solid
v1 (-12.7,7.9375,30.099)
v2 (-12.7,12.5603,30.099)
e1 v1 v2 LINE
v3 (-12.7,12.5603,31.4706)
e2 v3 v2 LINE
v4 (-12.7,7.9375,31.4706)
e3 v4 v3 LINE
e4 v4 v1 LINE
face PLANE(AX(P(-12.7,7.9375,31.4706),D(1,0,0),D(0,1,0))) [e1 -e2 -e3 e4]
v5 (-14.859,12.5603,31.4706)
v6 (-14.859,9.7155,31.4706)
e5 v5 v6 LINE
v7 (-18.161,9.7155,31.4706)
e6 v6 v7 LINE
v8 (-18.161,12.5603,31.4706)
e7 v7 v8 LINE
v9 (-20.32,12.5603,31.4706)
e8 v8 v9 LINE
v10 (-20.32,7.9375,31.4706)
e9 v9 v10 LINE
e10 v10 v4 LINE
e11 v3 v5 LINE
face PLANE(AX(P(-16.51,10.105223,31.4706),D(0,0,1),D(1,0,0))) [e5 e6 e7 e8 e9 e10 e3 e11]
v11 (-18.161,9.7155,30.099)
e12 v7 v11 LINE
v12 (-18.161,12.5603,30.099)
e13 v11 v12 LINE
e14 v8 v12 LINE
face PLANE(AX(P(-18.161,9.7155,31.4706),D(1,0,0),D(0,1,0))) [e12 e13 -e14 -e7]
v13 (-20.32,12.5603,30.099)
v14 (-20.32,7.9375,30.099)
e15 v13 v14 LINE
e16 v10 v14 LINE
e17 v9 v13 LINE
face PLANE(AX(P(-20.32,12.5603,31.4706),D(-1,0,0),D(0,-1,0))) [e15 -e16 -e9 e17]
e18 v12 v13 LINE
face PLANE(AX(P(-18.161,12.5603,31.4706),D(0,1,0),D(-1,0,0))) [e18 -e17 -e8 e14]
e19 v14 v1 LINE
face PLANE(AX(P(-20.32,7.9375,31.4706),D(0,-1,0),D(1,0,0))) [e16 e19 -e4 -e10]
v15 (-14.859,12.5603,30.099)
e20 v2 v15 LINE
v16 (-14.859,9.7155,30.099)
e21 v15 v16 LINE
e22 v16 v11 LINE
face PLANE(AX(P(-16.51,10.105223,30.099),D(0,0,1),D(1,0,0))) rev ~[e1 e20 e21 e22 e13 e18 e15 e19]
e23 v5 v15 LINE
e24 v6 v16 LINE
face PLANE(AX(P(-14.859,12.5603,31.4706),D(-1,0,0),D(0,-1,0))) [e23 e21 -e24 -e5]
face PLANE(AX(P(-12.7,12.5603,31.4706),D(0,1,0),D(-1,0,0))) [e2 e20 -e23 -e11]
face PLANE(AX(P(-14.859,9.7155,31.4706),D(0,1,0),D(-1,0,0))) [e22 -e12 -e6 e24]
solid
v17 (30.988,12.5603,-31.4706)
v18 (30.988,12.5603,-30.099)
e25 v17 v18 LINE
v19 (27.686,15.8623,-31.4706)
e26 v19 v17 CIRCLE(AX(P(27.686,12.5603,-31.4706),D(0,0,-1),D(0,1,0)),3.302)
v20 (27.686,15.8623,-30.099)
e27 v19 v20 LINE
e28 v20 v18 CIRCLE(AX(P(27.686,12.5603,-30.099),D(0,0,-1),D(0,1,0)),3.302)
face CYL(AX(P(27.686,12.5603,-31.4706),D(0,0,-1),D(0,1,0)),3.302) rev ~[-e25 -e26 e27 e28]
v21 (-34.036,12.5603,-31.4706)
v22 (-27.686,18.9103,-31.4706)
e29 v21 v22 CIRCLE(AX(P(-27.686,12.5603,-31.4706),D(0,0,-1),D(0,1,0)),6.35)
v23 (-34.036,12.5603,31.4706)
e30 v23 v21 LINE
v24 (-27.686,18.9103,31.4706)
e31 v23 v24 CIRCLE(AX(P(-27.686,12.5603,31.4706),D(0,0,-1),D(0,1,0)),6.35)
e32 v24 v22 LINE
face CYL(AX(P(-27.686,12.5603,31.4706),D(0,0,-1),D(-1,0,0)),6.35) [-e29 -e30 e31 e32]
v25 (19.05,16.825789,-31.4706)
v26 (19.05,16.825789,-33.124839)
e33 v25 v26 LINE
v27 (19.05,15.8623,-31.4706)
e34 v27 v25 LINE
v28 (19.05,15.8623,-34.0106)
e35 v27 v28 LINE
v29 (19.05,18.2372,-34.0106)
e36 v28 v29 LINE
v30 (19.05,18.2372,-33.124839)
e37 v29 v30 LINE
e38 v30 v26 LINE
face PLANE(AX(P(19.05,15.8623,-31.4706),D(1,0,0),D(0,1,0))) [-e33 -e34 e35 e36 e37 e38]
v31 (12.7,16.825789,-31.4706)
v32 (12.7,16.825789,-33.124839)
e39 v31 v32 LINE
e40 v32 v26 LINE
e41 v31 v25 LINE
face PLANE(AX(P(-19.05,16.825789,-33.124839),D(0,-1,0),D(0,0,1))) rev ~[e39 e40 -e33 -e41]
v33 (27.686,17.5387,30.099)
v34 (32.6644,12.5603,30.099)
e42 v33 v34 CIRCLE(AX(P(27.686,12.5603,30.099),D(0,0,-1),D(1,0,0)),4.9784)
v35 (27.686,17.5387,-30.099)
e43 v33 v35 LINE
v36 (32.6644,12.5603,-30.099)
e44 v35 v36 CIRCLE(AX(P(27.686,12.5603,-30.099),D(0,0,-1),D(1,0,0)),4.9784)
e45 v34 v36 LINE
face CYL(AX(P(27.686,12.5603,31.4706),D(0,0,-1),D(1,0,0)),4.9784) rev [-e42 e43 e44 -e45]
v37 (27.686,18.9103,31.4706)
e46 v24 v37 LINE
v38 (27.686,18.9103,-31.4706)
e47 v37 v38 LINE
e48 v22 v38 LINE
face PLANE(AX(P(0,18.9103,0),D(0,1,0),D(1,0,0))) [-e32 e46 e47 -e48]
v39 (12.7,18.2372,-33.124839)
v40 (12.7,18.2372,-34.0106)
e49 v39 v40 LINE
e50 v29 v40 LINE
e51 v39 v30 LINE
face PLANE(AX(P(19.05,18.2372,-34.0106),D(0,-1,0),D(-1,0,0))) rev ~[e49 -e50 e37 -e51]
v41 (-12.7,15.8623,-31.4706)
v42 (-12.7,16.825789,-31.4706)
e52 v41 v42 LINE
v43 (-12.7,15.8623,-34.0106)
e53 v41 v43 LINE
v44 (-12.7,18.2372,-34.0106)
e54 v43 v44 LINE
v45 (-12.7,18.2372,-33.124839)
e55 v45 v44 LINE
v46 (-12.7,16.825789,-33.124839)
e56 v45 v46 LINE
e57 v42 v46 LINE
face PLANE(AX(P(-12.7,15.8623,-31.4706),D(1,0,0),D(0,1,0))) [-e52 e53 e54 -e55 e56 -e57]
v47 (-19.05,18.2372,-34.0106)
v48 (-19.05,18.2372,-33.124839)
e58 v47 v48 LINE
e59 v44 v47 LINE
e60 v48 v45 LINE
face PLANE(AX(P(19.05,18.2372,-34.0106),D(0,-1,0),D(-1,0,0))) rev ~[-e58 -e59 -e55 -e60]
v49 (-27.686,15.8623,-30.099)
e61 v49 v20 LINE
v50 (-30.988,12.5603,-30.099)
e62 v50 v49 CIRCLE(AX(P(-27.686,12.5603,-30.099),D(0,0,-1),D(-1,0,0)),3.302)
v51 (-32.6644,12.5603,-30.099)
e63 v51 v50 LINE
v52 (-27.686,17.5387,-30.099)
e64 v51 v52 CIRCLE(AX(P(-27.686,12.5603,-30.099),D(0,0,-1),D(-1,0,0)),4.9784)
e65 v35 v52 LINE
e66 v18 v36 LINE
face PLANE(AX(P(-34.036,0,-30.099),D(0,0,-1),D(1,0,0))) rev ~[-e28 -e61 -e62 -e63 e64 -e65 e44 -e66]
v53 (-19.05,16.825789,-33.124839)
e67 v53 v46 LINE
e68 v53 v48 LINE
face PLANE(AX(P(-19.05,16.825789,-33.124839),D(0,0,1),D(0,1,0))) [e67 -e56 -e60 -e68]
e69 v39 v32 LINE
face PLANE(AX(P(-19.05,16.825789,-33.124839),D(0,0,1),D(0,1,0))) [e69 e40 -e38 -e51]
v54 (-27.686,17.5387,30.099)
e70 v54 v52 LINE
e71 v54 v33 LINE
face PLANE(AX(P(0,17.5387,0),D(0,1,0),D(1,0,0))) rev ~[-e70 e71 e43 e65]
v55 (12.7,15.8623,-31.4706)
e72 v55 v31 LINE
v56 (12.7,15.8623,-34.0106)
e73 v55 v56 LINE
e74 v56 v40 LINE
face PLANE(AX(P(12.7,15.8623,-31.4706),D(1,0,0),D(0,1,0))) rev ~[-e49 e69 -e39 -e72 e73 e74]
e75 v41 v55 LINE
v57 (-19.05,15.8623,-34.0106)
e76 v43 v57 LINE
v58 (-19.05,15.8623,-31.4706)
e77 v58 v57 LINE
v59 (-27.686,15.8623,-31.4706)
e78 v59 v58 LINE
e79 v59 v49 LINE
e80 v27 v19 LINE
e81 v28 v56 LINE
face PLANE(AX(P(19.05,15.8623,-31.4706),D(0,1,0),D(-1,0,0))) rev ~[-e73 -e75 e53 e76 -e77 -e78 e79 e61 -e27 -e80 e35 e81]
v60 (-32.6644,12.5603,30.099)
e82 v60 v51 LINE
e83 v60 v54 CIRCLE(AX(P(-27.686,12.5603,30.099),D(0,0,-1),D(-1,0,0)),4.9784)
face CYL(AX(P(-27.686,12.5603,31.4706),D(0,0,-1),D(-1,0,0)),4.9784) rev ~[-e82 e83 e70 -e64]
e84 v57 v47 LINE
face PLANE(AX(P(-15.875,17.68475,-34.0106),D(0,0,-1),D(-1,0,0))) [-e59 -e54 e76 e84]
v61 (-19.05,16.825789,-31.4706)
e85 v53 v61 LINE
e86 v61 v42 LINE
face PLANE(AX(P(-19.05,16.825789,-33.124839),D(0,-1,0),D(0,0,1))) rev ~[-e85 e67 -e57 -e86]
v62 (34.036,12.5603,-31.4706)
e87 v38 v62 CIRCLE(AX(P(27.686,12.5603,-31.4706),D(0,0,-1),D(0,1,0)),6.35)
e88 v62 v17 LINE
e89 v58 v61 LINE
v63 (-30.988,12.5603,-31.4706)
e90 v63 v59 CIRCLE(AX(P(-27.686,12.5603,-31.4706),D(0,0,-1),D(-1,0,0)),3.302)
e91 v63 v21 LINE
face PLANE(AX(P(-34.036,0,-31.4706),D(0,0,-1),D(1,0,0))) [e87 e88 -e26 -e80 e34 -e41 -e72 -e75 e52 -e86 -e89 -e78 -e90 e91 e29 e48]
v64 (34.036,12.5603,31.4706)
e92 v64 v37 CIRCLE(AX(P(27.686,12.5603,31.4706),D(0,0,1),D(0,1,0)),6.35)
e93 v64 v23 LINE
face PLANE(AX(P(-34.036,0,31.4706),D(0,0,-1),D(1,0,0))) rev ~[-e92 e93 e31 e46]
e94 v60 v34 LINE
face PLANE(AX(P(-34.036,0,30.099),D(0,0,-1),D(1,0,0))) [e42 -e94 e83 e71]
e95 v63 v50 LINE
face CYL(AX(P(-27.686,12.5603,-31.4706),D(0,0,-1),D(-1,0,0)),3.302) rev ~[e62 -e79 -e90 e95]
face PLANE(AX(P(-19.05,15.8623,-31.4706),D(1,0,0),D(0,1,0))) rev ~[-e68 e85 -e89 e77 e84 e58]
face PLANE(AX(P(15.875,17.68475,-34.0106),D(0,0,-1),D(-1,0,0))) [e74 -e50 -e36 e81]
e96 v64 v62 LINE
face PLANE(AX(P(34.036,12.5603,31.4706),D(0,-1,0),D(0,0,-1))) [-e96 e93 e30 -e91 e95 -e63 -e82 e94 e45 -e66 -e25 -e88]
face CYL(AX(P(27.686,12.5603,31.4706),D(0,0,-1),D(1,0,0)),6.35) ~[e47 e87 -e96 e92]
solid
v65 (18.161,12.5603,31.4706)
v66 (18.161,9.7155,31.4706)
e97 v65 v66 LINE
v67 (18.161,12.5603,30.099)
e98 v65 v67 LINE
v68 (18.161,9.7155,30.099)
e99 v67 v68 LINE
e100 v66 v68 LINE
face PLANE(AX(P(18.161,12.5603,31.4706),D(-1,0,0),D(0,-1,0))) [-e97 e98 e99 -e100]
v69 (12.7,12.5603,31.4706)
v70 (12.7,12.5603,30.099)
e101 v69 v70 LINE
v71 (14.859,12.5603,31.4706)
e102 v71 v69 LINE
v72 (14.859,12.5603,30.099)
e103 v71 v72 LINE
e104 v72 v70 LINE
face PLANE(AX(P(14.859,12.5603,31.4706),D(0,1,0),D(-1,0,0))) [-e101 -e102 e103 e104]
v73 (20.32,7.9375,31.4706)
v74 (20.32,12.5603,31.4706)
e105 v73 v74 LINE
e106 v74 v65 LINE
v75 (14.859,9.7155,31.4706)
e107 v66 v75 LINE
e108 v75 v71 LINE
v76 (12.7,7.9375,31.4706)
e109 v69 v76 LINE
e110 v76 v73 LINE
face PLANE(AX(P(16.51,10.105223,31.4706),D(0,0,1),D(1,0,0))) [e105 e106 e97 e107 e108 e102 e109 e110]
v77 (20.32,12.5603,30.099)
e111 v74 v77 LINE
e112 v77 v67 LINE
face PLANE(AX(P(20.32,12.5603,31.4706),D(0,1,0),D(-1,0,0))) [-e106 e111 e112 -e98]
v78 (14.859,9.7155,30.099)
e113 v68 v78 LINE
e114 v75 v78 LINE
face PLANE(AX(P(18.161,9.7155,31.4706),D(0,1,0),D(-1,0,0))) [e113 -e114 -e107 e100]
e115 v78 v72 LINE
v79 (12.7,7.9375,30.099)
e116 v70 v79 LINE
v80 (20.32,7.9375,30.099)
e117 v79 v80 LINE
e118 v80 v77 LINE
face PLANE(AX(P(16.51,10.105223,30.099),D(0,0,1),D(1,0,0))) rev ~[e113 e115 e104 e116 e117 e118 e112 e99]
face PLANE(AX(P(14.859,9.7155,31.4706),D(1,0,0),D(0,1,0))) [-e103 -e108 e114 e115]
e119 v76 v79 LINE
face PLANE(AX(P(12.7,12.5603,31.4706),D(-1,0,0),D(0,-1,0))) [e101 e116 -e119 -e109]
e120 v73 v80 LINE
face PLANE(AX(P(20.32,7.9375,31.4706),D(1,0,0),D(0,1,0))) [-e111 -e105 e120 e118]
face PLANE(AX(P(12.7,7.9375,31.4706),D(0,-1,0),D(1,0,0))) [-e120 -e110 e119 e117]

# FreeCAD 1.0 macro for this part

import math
import FreeCAD as App
import Part
import Sketcher

V = App.Vector
Q = App.Units.Quantity


def edges_at(feature, points):
    """Names of the edges that pass closest to the given points."""
    edges = feature.Shape.Edges
    near = lambda p: min(range(len(edges)), key=lambda i: edges[i].distToShape(Part.Vertex(*p))[0])
    return sorted({f"Edge{near(p) + 1}" for p in points})


def faces_at(feature, points):
    """Names of the faces that lie closest to the given points."""
    faces = feature.Shape.Faces
    near = lambda p: min(range(len(faces)), key=lambda i: faces[i].distToShape(Part.Vertex(*p))[0])
    return sorted({f"Face{near(p) + 1}" for p in points})


def add_polygon(sketch, points):
    """Adds a closed chain of lines whose ends are joined by coincident constraints."""
    first, n = sketch.GeometryCount, len(points)
    for a, b in zip(points, points[1:] + points[:1]):
        sketch.addGeometry(Part.LineSegment(App.Vector(*a, 0), App.Vector(*b, 0)), False)
    for i in range(n):
        sketch.addConstraint(Sketcher.Constraint("Coincident", first + i, 2, first + (i + 1) % n, 1))

doc = App.newDocument("Part")
body = doc.addObject("PartDesign::Body", "Body")

sketch1 = doc.addObject("Sketcher::SketchObject", "Sketch")
body.addObject(sketch1)
sketch1.AttachmentSupport = (doc.XZ_Plane, [""])
sketch1.MapMode = "FlatFace"
add_polygon(sketch1, [(-34, -31), (-34, 31), (34, 31), (34, -31)])
sketch1.addConstraint([
    Sketcher.Constraint("Vertical", 0),
    Sketcher.Constraint("Horizontal", 1),
    Sketcher.Constraint("Vertical", 2),
    Sketcher.Constraint("Horizontal", 3),
    Sketcher.Constraint("Symmetric", 0, 2, 2, 2, -1, 1),
    Sketcher.Constraint("DistanceX", 1, 1, 1, 2, Q("2.68 in")),
    Sketcher.Constraint("DistanceY", 0, 1, 0, 2, Q("2.478 in")),
])
pad1 = doc.addObject("PartDesign::Pad", "Pad")
body.addObject(pad1)
pad1.Profile = sketch1
pad1.Length = Q("0.7445 in")
pad1.Reversed = True
doc.recompute()

fillet = doc.addObject("PartDesign::Fillet", "Fillet")
body.addObject(fillet)
fillet.Base = (pad1, edges_at(pad1, [
    (34.036, 18.91, 0),
    (-34.036, 18.91, 0),
    (34.036, 0, 0),
    (-34.036, 0, 0),
]))
fillet.Radius = Q("0.25 in")

sketch2 = doc.addObject("Sketcher::SketchObject", "Sketch001")
body.addObject(sketch2)
sketch2.AttachmentSupport = (doc.YZ_Plane, [""])
sketch2.MapMode = "FlatFace"
sketch2.AttachmentOffset = App.Placement(V(0, 0, 1.34 * 25.4), App.Rotation())
add_polygon(sketch2, [(13, 31), (0, 31), (0, -31), (13, -31)])
sketch2.addConstraint([
    Sketcher.Constraint("Horizontal", 0),
    Sketcher.Constraint("Vertical", 1),
    Sketcher.Constraint("Horizontal", 2),
    Sketcher.Constraint("Vertical", 3),
    Sketcher.Constraint("Symmetric", 0, 2, 1, 2, -1, 1),
    Sketcher.Constraint("DistanceY", 1, 2, 1, 1, Q("2.478 in")),
    Sketcher.Constraint("DistanceX", 0, 2, 0, 1, Q("0.4945 in")),
])
pocket1 = doc.addObject("PartDesign::Pocket", "Pocket")
body.addObject(pocket1)
pocket1.Profile = sketch2
pocket1.Type = "ThroughAll"
pocket1.Midplane = True
doc.recompute()

thickness = doc.addObject("PartDesign::Thickness", "Thickness")
body.addObject(thickness)
thickness.Base = (pocket1, faces_at(pocket1, [(0, 12.56, 0)]))
thickness.Value = Q("0.054 in")
thickness.Reversed = True
thickness.Join = "Intersection"

sketch3 = doc.addObject("Sketcher::SketchObject", "Sketch002")
body.addObject(sketch3)
sketch3.AttachmentSupport = (doc.XY_Plane, [""])
sketch3.MapMode = "FlatFace"
sketch3.AttachmentOffset = App.Placement(V(0, 0, -1.239 * 25.4), App.Rotation())
sketch3.addGeometry([
    Part.LineSegment(V(-27.7, 15.9, 0), V(27.7, 15.9, 0)),
    Part.ArcOfCircle(Part.Circle(V(27.7, 12.6, 0), V(0, 0, 1), 3.3), math.radians(0), math.radians(90)),
    Part.LineSegment(V(31, 12.6, 0), V(-31, 12.6, 0)),
    Part.ArcOfCircle(Part.Circle(V(-27.7, 12.6, 0), V(0, 0, 1), 3.3), math.radians(90), math.radians(180)),
], False)
sketch3.addConstraint([
    Sketcher.Constraint("Tangent", 0, 2, 1, 2),
    Sketcher.Constraint("Coincident", 1, 1, 2, 1),
    Sketcher.Constraint("Coincident", 2, 2, 3, 2),
    Sketcher.Constraint("Tangent", 3, 1, 0, 1),
    Sketcher.Constraint("Horizontal", 0),
    Sketcher.Constraint("Horizontal", 2),
    Sketcher.Constraint("Equal", 1, 3),
    Sketcher.Constraint("Horizontal", 3, 3, 1, 1),
    Sketcher.Constraint("Radius", 1, Q("0.13 in")),
    Sketcher.Constraint("DistanceX", 0, 1, 0, 2, Q("2.18 in")),
    Sketcher.Constraint("DistanceX", -1, 1, 1, 3, Q("1.09 in")),
    Sketcher.Constraint("DistanceY", -1, 1, 1, 3, Q("0.4945 in")),
])
pocket2 = doc.addObject("PartDesign::Pocket", "Pocket001")
body.addObject(pocket2)
pocket2.Profile = sketch3
pocket2.Length = Q("0.054 in")
pocket2.Reversed = True

sketch4 = doc.addObject("Sketcher::SketchObject", "Sketch003")
body.addObject(sketch4)
sketch4.AttachmentSupport = (doc.XY_Plane, [""])
sketch4.MapMode = "FlatFace"
sketch4.AttachmentOffset = App.Placement(V(0, 0, -1.239 * 25.4), App.Rotation())
add_polygon(sketch4, [(19.1, 19.5), (19.1, 15.9), (12.7, 15.9), (12.7, 19.5)])
add_polygon(sketch4, [(-12.7, 19.5), (-12.7, 15.9), (-19.1, 15.9), (-19.1, 19.5)])
sketch4.addConstraint([
    Sketcher.Constraint("Vertical", 0),
    Sketcher.Constraint("Horizontal", 1),
    Sketcher.Constraint("Vertical", 2),
    Sketcher.Constraint("Horizontal", 3),
    Sketcher.Constraint("Vertical", 4),
    Sketcher.Constraint("Horizontal", 5),
    Sketcher.Constraint("Vertical", 6),
    Sketcher.Constraint("Horizontal", 7),
    Sketcher.Constraint("Symmetric", 1, 2, 4, 2, -2),
    Sketcher.Constraint("Symmetric", 3, 2, 6, 2, -2),
    Sketcher.Constraint("DistanceX", 4, 2, 1, 2, Q("1 in")),
    Sketcher.Constraint("DistanceX", 1, 2, 1, 1, Q("0.25 in")),
    Sketcher.Constraint("DistanceY", 0, 2, 0, 1, Q("0.1435 in")),
    Sketcher.Constraint("DistanceY", -1, 1, 2, 2, Q("0.768 in")),
])
pad2 = doc.addObject("PartDesign::Pad", "Pad001")
body.addObject(pad2)
pad2.Profile = sketch4
pad2.Length = Q("0.1 in")
pad2.Reversed = True

sketch5 = doc.addObject("Sketcher::SketchObject", "Sketch004")
body.addObject(sketch5)
sketch5.AttachmentSupport = (doc.XY_Plane, [""])
sketch5.MapMode = "FlatFace"
sketch5.AttachmentOffset = App.Placement(V(0, 0, -1.339 * 25.4), App.Rotation())
add_polygon(sketch5, [(19.1, 19.5), (19.1, 18.2), (-19.1, 18.2), (-19.1, 19.5)])
sketch5.addConstraint([
    Sketcher.Constraint("Vertical", 0),
    Sketcher.Constraint("Horizontal", 1),
    Sketcher.Constraint("Vertical", 2),
    Sketcher.Constraint("Horizontal", 3),
    Sketcher.Constraint("DistanceX", 1, 2, 1, 1, Q("1.5 in")),
    Sketcher.Constraint("DistanceY", 0, 2, 0, 1, Q("0.05 in")),
    Sketcher.Constraint("DistanceX", -1, 1, 0, 2, Q("0.75 in")),
    Sketcher.Constraint("DistanceY", -1, 1, 0, 2, Q("0.718 in")),
])
pocket3 = doc.addObject("PartDesign::Pocket", "Pocket002")
body.addObject(pocket3)
pocket3.Profile = sketch5
pocket3.Length = Q("0.1 in")
pocket3.Reversed = True

sketch6 = doc.addObject("Sketcher::SketchObject", "Sketch005")
body.addObject(sketch6)
sketch6.AttachmentSupport = (doc.YZ_Plane, [""])
sketch6.MapMode = "FlatFace"
sketch6.AttachmentOffset = App.Placement(V(0, 0, -0.75 * 25.4), App.Rotation())
add_polygon(sketch6, [(18.2, -33.1), (16.8, -33.1), (16.8, -31.5), (18.2, -31.5)])
sketch6.addConstraint([
    Sketcher.Constraint("Horizontal", 0),
    Sketcher.Constraint("Vertical", 1),
    Sketcher.Constraint("Horizontal", 2),
    Sketcher.Constraint("Vertical", 3),
    Sketcher.Constraint("DistanceY", 1, 2, -1, 1, Q("1.239 in")),
    Sketcher.Constraint("DistanceX", -1, 1, 2, 2, Q("0.718 in")),
    Sketcher.Constraint("DistanceX", 0, 2, 0, 1, 1.411411),
    Sketcher.Constraint("DistanceY", 1, 1, 1, 2, 1.654239),
])
pocket4 = doc.addObject("PartDesign::Pocket", "Pocket003")
body.addObject(pocket4)
pocket4.Profile = sketch6
pocket4.Type = "ThroughAll"
pocket4.Reversed = True
body2 = doc.addObject("PartDesign::Body", "Body001")

sketch7 = doc.addObject("Sketcher::SketchObject", "Sketch006")
body2.addObject(sketch7)
sketch7.AttachmentSupport = (doc.getObject("XY_Plane001"), [""])
sketch7.MapMode = "FlatFace"
sketch7.AttachmentOffset = App.Placement(V(0, 0, 1.239 * 25.4), App.Rotation())
add_polygon(sketch7, [(-18.2, 12.6), (-20.3, 12.6), (-20.3, 7.9), (-12.7, 7.9), (-12.7, 12.6), (-14.9, 12.6), (-14.9, 9.7), (-18.2, 9.7)])
sketch7.addConstraint([
    Sketcher.Constraint("Horizontal", 0),
    Sketcher.Constraint("Vertical", 1),
    Sketcher.Constraint("Horizontal", 2),
    Sketcher.Constraint("Vertical", 3),
    Sketcher.Constraint("Horizontal", 4),
    Sketcher.Constraint("Vertical", 5),
    Sketcher.Constraint("Horizontal", 6),
    Sketcher.Constraint("Vertical", 7),
    Sketcher.Constraint("Horizontal", 0, 2, 3, 2),
    Sketcher.Constraint("Equal", 0, 4),
    Sketcher.Constraint("DistanceX", 2, 1, 2, 2, Q("0.3 in")),
    Sketcher.Constraint("DistanceX", 6, 2, 6, 1, Q("0.13 in")),
    Sketcher.Constraint("DistanceX", 0, 2, -1, 1, Q("0.8 in")),
    Sketcher.Constraint("DistanceY", 1, 2, 1, 1, Q("0.182 in")),
    Sketcher.Constraint("DistanceY", 5, 2, 5, 1, Q("0.112 in")),
    Sketcher.Constraint("DistanceY", -1, 1, 1, 2, Q("0.3125 in")),
])
pad3 = doc.addObject("PartDesign::Pad", "Pad002")
body2.addObject(pad3)
pad3.Profile = sketch7
pad3.Length = Q("0.054 in")
pad3.Reversed = True
body3 = doc.addObject("PartDesign::Body", "Body002")

sketch8 = doc.addObject("Sketcher::SketchObject", "Sketch007")
body3.addObject(sketch8)
sketch8.AttachmentSupport = (doc.getObject("XY_Plane002"), [""])
sketch8.MapMode = "FlatFace"
sketch8.AttachmentOffset = App.Placement(V(0, 0, 1.239 * 25.4), App.Rotation())
add_polygon(sketch8, [(14.9, 12.6), (12.7, 12.6), (12.7, 7.9), (20.3, 7.9), (20.3, 12.6), (18.2, 12.6), (18.2, 9.7), (14.9, 9.7)])
sketch8.addConstraint([
    Sketcher.Constraint("Horizontal", 0),
    Sketcher.Constraint("Vertical", 1),
    Sketcher.Constraint("Horizontal", 2),
    Sketcher.Constraint("Vertical", 3),
    Sketcher.Constraint("Horizontal", 4),
    Sketcher.Constraint("Vertical", 5),
    Sketcher.Constraint("Horizontal", 6),
    Sketcher.Constraint("Vertical", 7),
    Sketcher.Constraint("Horizontal", 0, 2, 3, 2),
    Sketcher.Constraint("Equal", 0, 4),
    Sketcher.Constraint("DistanceX", 2, 1, 2, 2, Q("0.3 in")),
    Sketcher.Constraint("DistanceX", 6, 2, 6, 1, Q("0.13 in")),
    Sketcher.Constraint("DistanceX", -1, 1, 0, 2, Q("0.5 in")),
    Sketcher.Constraint("DistanceY", 1, 2, 1, 1, Q("0.182 in")),
    Sketcher.Constraint("DistanceY", 5, 2, 5, 1, Q("0.112 in")),
    Sketcher.Constraint("DistanceY", -1, 1, 1, 2, Q("0.3125 in")),
])
pad4 = doc.addObject("PartDesign::Pad", "Pad003")
body3.addObject(pad4)
pad4.Profile = sketch8
pad4.Length = Q("0.054 in")
pad4.Reversed = True

doc.recompute()
